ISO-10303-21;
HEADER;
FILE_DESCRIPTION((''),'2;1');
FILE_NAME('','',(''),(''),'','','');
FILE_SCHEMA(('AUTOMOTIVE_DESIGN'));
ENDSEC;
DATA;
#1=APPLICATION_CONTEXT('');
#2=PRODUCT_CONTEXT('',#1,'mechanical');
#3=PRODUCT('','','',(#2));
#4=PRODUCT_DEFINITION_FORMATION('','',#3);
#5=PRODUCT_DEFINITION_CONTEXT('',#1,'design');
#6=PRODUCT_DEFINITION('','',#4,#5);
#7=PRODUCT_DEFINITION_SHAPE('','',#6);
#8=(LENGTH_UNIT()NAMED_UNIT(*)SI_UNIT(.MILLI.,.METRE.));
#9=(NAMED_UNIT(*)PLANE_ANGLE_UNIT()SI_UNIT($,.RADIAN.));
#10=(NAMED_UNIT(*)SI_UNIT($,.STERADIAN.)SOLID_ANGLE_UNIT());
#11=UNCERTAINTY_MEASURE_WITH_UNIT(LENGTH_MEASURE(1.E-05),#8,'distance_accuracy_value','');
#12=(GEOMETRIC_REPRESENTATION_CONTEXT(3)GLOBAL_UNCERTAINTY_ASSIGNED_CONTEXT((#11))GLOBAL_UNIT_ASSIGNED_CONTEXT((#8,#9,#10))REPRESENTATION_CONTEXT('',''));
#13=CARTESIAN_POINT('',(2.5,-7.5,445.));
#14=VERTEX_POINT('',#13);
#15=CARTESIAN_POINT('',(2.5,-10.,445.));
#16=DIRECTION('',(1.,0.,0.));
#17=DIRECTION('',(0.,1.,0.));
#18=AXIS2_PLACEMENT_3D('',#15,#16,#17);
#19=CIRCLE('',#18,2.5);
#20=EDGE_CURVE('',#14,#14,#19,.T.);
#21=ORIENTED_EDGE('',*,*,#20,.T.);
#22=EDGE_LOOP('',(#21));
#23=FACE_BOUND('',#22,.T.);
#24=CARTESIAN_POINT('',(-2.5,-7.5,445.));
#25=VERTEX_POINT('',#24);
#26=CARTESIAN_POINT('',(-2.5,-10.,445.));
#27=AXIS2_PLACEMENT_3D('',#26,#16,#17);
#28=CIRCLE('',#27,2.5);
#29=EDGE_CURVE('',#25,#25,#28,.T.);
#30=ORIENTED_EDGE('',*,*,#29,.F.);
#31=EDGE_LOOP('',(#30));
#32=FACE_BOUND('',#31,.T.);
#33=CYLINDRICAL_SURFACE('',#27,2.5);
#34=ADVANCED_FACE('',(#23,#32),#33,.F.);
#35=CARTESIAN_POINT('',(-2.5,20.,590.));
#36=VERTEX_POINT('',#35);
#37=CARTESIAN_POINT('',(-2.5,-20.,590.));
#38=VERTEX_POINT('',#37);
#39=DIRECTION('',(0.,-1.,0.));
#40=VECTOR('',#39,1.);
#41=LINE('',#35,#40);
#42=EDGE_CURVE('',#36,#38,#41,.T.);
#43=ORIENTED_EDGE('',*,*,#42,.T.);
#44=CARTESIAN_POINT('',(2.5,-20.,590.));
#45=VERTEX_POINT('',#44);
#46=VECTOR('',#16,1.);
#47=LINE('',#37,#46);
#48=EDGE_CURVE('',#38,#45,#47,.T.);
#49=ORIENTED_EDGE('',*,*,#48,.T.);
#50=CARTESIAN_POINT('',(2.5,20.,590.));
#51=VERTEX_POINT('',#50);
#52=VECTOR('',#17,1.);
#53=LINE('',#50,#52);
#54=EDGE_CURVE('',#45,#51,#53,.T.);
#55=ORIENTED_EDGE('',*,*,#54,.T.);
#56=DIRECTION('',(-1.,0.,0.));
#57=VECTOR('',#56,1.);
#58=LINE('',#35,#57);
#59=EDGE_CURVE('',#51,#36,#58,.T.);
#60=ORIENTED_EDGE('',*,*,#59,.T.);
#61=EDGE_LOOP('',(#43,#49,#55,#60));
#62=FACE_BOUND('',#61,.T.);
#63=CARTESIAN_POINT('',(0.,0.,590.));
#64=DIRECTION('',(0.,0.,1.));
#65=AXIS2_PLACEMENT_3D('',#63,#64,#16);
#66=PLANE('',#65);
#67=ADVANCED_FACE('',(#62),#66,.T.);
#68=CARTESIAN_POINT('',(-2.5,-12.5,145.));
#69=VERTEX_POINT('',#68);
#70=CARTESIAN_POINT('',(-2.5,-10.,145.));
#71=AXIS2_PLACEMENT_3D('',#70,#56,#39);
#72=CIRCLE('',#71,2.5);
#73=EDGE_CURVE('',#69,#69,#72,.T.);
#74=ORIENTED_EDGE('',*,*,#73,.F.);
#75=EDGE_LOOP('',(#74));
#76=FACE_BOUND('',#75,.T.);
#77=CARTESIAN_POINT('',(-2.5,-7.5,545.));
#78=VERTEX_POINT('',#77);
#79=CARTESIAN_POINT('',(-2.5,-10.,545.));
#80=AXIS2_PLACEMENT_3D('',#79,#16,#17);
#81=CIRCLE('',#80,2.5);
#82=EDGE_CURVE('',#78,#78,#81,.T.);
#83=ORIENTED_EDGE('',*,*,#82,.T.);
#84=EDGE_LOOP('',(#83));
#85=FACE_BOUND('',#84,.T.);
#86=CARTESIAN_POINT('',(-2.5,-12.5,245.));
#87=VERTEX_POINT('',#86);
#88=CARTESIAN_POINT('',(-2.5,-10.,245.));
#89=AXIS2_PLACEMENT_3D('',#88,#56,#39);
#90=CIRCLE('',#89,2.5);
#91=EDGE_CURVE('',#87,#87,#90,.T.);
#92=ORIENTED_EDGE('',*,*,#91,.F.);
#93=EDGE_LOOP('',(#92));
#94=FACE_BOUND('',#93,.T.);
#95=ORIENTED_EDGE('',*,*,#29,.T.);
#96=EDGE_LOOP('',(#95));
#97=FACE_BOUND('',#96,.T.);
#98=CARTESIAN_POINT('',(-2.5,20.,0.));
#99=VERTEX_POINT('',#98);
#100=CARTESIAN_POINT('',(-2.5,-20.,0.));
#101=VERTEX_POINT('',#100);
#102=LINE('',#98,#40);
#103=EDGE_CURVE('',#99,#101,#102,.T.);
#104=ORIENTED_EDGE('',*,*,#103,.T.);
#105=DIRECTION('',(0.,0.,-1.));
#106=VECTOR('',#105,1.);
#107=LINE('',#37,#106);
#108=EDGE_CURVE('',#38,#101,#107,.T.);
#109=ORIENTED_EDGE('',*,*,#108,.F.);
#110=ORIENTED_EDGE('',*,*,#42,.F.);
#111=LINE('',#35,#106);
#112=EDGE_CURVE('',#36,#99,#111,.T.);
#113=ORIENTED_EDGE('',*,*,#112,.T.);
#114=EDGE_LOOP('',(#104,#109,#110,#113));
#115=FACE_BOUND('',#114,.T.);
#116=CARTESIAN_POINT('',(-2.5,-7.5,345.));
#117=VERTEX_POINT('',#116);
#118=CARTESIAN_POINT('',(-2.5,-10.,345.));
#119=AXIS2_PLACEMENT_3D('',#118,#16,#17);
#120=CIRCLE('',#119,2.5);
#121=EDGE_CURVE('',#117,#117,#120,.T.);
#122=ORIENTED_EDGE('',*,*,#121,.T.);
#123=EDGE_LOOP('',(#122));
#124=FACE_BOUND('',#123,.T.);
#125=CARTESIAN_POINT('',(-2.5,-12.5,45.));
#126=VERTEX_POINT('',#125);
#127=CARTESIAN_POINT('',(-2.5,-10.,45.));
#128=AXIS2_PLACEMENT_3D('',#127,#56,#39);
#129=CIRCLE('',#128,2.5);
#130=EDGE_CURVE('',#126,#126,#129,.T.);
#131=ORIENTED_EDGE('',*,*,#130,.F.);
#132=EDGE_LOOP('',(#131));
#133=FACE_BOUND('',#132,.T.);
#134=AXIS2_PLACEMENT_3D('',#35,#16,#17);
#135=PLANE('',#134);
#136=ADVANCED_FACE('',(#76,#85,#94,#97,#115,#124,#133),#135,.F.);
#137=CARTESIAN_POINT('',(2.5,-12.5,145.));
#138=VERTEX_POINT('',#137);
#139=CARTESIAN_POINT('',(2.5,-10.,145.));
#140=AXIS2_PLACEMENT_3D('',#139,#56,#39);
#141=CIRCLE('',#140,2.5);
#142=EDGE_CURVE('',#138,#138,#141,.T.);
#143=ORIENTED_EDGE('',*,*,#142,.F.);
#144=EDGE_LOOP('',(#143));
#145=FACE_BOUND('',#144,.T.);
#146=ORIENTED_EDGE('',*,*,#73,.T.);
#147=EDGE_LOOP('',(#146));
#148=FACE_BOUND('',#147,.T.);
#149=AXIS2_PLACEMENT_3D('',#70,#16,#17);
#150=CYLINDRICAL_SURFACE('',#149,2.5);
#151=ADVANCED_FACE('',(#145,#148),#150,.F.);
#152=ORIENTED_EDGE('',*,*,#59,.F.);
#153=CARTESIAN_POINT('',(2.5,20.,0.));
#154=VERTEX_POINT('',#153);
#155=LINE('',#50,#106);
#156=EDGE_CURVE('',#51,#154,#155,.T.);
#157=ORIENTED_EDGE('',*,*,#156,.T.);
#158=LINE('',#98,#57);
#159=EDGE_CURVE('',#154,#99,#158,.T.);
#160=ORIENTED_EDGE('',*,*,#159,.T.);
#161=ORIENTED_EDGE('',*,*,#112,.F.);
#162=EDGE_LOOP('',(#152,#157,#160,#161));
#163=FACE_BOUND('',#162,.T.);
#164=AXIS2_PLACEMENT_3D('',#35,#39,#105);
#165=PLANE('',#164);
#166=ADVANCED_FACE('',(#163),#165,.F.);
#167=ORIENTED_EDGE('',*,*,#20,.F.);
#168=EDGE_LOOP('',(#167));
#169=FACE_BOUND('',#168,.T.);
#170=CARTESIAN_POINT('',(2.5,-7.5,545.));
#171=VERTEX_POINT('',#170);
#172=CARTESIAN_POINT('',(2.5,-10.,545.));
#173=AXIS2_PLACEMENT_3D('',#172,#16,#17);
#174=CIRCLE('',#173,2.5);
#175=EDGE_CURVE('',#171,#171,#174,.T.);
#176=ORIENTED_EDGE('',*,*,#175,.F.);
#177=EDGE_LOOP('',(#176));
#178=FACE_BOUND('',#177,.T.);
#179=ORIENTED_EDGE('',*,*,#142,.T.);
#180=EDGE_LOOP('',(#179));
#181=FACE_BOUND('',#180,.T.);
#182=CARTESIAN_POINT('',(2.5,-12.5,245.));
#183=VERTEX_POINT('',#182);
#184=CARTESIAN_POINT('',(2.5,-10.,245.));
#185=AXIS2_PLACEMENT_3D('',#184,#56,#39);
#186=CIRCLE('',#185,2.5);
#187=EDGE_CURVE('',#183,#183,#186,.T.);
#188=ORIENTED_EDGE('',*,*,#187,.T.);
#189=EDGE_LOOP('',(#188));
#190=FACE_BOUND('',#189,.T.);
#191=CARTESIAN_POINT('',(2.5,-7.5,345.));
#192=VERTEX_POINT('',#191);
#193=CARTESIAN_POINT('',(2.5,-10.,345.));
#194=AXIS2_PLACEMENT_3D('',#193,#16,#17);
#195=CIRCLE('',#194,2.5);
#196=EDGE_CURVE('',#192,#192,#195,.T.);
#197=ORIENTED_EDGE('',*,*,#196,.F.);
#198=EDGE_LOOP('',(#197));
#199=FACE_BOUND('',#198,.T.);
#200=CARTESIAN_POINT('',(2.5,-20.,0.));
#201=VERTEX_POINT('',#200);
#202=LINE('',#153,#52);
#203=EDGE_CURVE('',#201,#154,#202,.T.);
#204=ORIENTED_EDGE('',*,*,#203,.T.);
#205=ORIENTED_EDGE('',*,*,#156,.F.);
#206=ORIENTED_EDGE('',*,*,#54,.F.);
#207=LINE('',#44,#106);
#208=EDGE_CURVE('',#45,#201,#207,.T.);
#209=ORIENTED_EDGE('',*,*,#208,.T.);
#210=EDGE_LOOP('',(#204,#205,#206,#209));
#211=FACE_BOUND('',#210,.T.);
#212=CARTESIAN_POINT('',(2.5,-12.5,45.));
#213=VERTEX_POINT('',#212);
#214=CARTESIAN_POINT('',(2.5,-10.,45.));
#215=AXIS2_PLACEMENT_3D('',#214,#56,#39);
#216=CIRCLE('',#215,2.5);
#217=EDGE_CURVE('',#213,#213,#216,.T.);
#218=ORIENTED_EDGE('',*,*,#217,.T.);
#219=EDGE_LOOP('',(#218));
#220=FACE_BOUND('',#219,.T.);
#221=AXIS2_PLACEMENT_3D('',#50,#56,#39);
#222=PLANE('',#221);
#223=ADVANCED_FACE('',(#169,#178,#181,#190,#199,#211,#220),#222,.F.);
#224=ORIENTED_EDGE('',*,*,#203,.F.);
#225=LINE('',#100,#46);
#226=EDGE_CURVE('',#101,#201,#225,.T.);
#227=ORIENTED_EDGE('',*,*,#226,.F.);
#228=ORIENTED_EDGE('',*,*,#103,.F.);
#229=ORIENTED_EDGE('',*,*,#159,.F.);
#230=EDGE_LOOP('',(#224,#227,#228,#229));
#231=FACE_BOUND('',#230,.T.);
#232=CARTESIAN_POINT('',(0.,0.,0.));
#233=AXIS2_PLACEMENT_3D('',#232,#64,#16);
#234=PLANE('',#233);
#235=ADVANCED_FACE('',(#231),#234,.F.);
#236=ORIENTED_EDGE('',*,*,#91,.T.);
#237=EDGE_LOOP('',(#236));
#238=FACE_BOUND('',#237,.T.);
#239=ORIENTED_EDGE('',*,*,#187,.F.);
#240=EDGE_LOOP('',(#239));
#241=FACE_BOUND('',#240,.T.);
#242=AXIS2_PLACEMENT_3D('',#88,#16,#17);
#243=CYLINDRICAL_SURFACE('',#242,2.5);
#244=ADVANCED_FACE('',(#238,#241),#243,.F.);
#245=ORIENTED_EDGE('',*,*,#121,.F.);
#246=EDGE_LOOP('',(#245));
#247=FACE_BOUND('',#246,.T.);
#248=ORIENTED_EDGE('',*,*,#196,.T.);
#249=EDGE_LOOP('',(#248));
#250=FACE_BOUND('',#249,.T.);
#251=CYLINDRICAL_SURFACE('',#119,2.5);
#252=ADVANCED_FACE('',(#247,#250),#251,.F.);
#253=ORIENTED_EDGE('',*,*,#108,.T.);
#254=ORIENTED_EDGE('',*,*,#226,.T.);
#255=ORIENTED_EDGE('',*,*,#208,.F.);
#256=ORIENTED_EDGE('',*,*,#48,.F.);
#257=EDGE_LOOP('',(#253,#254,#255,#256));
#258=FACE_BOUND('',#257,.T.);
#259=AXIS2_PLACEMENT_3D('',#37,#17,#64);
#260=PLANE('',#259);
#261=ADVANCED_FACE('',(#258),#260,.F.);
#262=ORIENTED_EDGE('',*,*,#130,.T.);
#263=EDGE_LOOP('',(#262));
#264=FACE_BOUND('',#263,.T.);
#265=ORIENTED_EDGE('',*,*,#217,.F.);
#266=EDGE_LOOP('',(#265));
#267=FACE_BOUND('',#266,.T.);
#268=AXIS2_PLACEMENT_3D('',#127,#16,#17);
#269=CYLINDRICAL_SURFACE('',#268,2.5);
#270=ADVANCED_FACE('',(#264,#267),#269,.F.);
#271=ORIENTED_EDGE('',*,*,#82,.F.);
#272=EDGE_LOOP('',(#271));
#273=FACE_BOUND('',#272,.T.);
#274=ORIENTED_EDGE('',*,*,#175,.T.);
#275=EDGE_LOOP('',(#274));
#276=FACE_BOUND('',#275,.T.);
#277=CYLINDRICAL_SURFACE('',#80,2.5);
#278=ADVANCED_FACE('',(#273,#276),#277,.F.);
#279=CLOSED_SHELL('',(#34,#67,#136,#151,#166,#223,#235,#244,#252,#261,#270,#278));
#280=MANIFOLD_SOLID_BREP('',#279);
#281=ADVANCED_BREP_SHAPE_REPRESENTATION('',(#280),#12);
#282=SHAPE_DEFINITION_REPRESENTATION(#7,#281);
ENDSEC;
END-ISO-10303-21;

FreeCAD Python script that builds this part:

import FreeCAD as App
import Part
import Sketcher


def add_polygon(sketch, points):
    """Adds a closed chain of lines whose ends are joined by coincident constraints."""
    first, n = sketch.GeometryCount, len(points)
    for a, b in zip(points, points[1:] + points[:1]):
        sketch.addGeometry(Part.LineSegment(App.Vector(*a, 0), App.Vector(*b, 0)), False)
    for i in range(n):
        sketch.addConstraint(Sketcher.Constraint("Coincident", first + i, 2, first + (i + 1) % n, 1))

doc = App.newDocument("Part")
body = doc.addObject("PartDesign::Body", "Body")

sketch1 = body.newObject("Sketcher::SketchObject", "Sketch")
sketch1.AttachmentSupport = (doc.getObject("XY_Plane"), [""])
sketch1.MapMode = "FlatFace"
add_polygon(sketch1, [(-2, 20), (-2, -20), (2, -20), (2, 20)])
sketch1.addConstraint([
    Sketcher.Constraint("Vertical", 0),
    Sketcher.Constraint("Horizontal", 1),
    Sketcher.Constraint("Vertical", 2),
    Sketcher.Constraint("Horizontal", 3),
    Sketcher.Constraint("Symmetric", 0, 2, 2, 2, -1, 1),
    Sketcher.Constraint("DistanceX", 1, 1, 1, 2, 5.0),
    Sketcher.Constraint("DistanceY", 0, 2, 0, 1, 40.0),
])
pad1 = body.newObject("PartDesign::Pad", "Pad")
pad1.Profile = sketch1
pad1.Length = 590

sketch2 = body.newObject("Sketcher::SketchObject", "Sketch001")
sketch2.AttachmentSupport = (doc.getObject("YZ_Plane"), [""])
sketch2.MapMode = "FlatFace"
sketch2.AttachmentOffset = App.Placement(App.Vector(0, 0, 2.5), App.Rotation())
sketch2.addGeometry([
    Part.Circle(App.Vector(-10, 345, 0), App.Vector(0, 0, 1), 2.5),
    Part.Circle(App.Vector(-10, 445, 0), App.Vector(0, 0, 1), 2.5),
    Part.Circle(App.Vector(-10, 145, 0), App.Vector(0, 0, 1), 2.5),
    Part.Circle(App.Vector(-10, 245, 0), App.Vector(0, 0, 1), 2.5),
    Part.Circle(App.Vector(-10, 545, 0), App.Vector(0, 0, 1), 2.5),
    Part.Circle(App.Vector(-10, 45, 0), App.Vector(0, 0, 1), 2.5),
], False)
sketch2.addConstraint([
    Sketcher.Constraint("Equal", 0, 1),
    Sketcher.Constraint("Equal", 1, 2),
    Sketcher.Constraint("Equal", 2, 3),
    Sketcher.Constraint("Equal", 3, 4),
    Sketcher.Constraint("Equal", 4, 5),
    Sketcher.Constraint("Vertical", 0, 3, 1, 3),
    Sketcher.Constraint("Vertical", 1, 3, 2, 3),
    Sketcher.Constraint("Vertical", 2, 3, 3, 3),
    Sketcher.Constraint("Vertical", 3, 3, 4, 3),
    Sketcher.Constraint("Vertical", 4, 3, 5, 3),
    Sketcher.Constraint("Diameter", 0, 5.0),
    Sketcher.Constraint("DistanceX", 0, 3, -1, 1, 10.0),
    Sketcher.Constraint("DistanceY", -1, 1, 0, 3, 345.0),
    Sketcher.Constraint("DistanceY", -1, 1, 1, 3, 445.0),
    Sketcher.Constraint("DistanceY", -1, 1, 2, 3, 145.0),
    Sketcher.Constraint("DistanceY", -1, 1, 3, 3, 245.0),
    Sketcher.Constraint("DistanceY", -1, 1, 4, 3, 545.0),
    Sketcher.Constraint("DistanceY", -1, 1, 5, 3, 45.0),
])
pocket1 = body.newObject("PartDesign::Pocket", "Pocket")
pocket1.Profile = sketch2
pocket1.Type = "ThroughAll"

doc.recompute()
